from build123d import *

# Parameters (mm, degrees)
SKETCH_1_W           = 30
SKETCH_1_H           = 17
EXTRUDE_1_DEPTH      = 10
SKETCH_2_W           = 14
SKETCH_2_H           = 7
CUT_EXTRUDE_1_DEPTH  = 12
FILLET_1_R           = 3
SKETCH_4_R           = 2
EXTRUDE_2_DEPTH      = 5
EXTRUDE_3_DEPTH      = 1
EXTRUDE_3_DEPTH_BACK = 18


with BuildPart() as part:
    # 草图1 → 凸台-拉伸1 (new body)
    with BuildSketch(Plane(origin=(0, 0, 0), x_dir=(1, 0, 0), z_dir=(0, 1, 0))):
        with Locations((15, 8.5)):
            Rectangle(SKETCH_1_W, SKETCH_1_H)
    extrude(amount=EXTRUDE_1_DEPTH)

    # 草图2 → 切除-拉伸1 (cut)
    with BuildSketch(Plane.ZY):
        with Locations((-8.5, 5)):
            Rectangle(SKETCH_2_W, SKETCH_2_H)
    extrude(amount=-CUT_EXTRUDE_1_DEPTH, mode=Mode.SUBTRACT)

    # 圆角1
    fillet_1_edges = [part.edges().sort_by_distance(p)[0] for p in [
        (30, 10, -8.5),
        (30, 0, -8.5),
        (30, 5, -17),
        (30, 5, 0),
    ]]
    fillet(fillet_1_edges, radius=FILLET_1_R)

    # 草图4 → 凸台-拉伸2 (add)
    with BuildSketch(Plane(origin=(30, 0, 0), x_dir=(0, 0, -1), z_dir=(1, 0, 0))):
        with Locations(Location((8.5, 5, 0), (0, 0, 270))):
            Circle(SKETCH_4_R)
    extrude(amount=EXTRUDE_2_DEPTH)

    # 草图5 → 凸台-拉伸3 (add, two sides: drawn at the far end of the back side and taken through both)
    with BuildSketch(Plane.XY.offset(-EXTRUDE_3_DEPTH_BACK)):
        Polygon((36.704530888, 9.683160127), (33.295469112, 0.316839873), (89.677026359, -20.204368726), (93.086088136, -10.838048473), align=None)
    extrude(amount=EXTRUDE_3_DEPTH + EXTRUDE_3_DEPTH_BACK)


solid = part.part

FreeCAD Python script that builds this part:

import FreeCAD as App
import Part
import Sketcher
from FreeCAD import Vector
Q = App.Units.Quantity


def edges_at(feature, points):
    """Names of the edges that pass closest to the given points."""
    edges = feature.Shape.Edges
    near = lambda p: min(range(len(edges)), key=lambda i: edges[i].distToShape(Part.Vertex(*p))[0])
    return sorted({f"Edge{near(p) + 1}" for p in points})


def add_polygon(sketch, points):
    """Adds a closed chain of lines whose ends are joined by coincident constraints."""
    first, n = sketch.GeometryCount, len(points)
    for a, b in zip(points, points[1:] + points[:1]):
        sketch.addGeometry(Part.LineSegment(App.Vector(*a, 0), App.Vector(*b, 0)), False)
    for i in range(n):
        sketch.addConstraint(Sketcher.Constraint("Coincident", first + i, 2, first + (i + 1) % n, 1))

doc = App.newDocument("Part")
params = doc.addObject("Spreadsheet::Sheet", "Params")
for row, (alias, value) in enumerate([
    ("sketch1_width", "30 mm"),
    ("sketch1_height", "17 mm"),
    ("pad1_length", "10 mm"),
    ("sketch2_width", "7 mm"),
    ("sketch2_height", "14 mm"),
    ("pocket1_length", "12 mm"),
    ("fillet_radius", "3 mm"),
    ("sketch3_diameter", "4 mm"),
    ("pad2_length", "5 mm"),
    ("sketch4_length", "60 mm"),
    ("pad3_length", "1 mm"),
    ("pad3_length2", "18 mm"),
], start=1):
    params.set(f"A{row}", alias)
    params.set(f"B{row}", "=" + value)
    params.setAlias(f"B{row}", alias)

body = doc.addObject("PartDesign::Body", "Body")

# Sketch on XZ plane
sketch1 = doc.addObject("Sketcher::SketchObject", "Sketch")
body.addObject(sketch1)
sketch1.AttachmentSupport = (doc.XZ_Plane, [""])
sketch1.MapMode = "FlatFace"
add_polygon(sketch1, [(0, -17), (0, 0), (30, 0), (30, -17)])  # lines 0-3
sketch1.addConstraint(Sketcher.Constraint("Vertical", 0))
sketch1.addConstraint(Sketcher.Constraint("Horizontal", 1))
sketch1.addConstraint(Sketcher.Constraint("Vertical", 2))
sketch1.addConstraint(Sketcher.Constraint("Horizontal", 3))
sketch1.addConstraint(Sketcher.Constraint("Coincident", 0, 2, -1, 1))
sketch1.addConstraint(Sketcher.Constraint("DistanceX", 1, 1, 1, 2, Q("30 mm")))
sketch1.addConstraint(Sketcher.Constraint("DistanceY", 0, 1, 0, 2, Q("17 mm")))
sketch1.setExpression("Constraints[9]", "Params.sketch1_width")
sketch1.setExpression("Constraints[10]", "Params.sketch1_height")
pad1 = doc.addObject("PartDesign::Pad", "Pad")
body.addObject(pad1)
pad1.Profile = sketch1
pad1.setExpression("Length", "Params.pad1_length")
pad1.Reversed = True

# Sketch on YZ plane
sketch2 = doc.addObject("Sketcher::SketchObject", "Sketch001")
body.addObject(sketch2)
sketch2.AttachmentSupport = (doc.YZ_Plane, [""])
sketch2.MapMode = "FlatFace"
add_polygon(sketch2, [(8.5, -15.5), (1.5, -15.5), (1.5, -1.5), (8.5, -1.5)])  # lines 0-3
sketch2.addConstraint(Sketcher.Constraint("Horizontal", 0))
sketch2.addConstraint(Sketcher.Constraint("Vertical", 1))
sketch2.addConstraint(Sketcher.Constraint("Horizontal", 2))
sketch2.addConstraint(Sketcher.Constraint("Vertical", 3))
sketch2.addConstraint(Sketcher.Constraint("DistanceX", 0, 2, 0, 1, Q("7 mm")))
sketch2.addConstraint(Sketcher.Constraint("DistanceY", 1, 1, 1, 2, Q("14 mm")))
sketch2.addConstraint(Sketcher.Constraint("DistanceX", -1, 1, 0, 2, Q("1.5 mm")))
sketch2.addConstraint(Sketcher.Constraint("DistanceY", 0, 2, -1, 1, Q("15.5 mm")))
sketch2.setExpression("Constraints[8]", "Params.sketch2_width")
sketch2.setExpression("Constraints[9]", "Params.sketch2_height")
pocket1 = doc.addObject("PartDesign::Pocket", "Pocket")
body.addObject(pocket1)
pocket1.Profile = sketch2
pocket1.setExpression("Length", "Params.pocket1_length")
pocket1.Reversed = True
doc.recompute()

fillet = doc.addObject("PartDesign::Fillet", "Fillet")
body.addObject(fillet)
fillet.Base = (pocket1, edges_at(pocket1, [
    (30, 10, -8.5),
    (30, 0, -8.5),
    (30, 5, -17),
    (30, 5, 0),
]))
fillet.setExpression("Radius", "Params.fillet_radius")

# Sketch on YZ plane
sketch3 = doc.addObject("Sketcher::SketchObject", "Sketch002")
body.addObject(sketch3)
sketch3.AttachmentSupport = (doc.YZ_Plane, [""])
sketch3.MapMode = "FlatFace"
sketch3.AttachmentOffset = App.Placement(Vector(0, 0, 30), App.Rotation())
sketch3.addGeometry(Part.Circle(Vector(5, -8.5, 0), Vector(0, 0, 1), 2), False)
sketch3.addConstraint(Sketcher.Constraint("Diameter", 0, Q("4 mm")))
sketch3.addConstraint(Sketcher.Constraint("DistanceX", -1, 1, 0, 3, Q("5 mm")))
sketch3.addConstraint(Sketcher.Constraint("DistanceY", 0, 3, -1, 1, Q("8.5 mm")))
sketch3.setExpression("Constraints[0]", "Params.sketch3_diameter")
pad2 = doc.addObject("PartDesign::Pad", "Pad001")
body.addObject(pad2)
pad2.Profile = sketch3
pad2.setExpression("Length", "Params.pad2_length")

# Sketch on XY plane
sketch4 = doc.addObject("Sketcher::SketchObject", "Sketch003")
body.addObject(sketch4)
sketch4.AttachmentSupport = (doc.XY_Plane, [""])
sketch4.MapMode = "FlatFace"
add_polygon(sketch4, [(36.704531, 9.68316), (33.295469, 0.31684), (89.677026, -20.204369), (93.086088, -10.838048)])  # lines 0-3
sketch4.addConstraint(Sketcher.Constraint("Perpendicular", 0, 1))
sketch4.addConstraint(Sketcher.Constraint("Perpendicular", 1, 2))
sketch4.addConstraint(Sketcher.Constraint("Perpendicular", 2, 3))
sketch4.addConstraint(Sketcher.Constraint("Angle", 0, Q("-110 deg")))
sketch4.addConstraint(Sketcher.Constraint("Distance", 1, Q("60 mm")))
sketch4.addConstraint(Sketcher.Constraint("Distance", 0, Q("9.96743 mm")))
sketch4.addConstraint(Sketcher.Constraint("DistanceX", -1, 1, 0, 2, Q("33.295469 mm")))
sketch4.addConstraint(Sketcher.Constraint("DistanceY", -1, 1, 0, 2, Q("0.31684 mm")))
sketch4.setExpression("Constraints[8]", "Params.sketch4_length")
pad3 = doc.addObject("PartDesign::Pad", "Pad002")
body.addObject(pad3)
pad3.Profile = sketch4
pad3.Type = "TwoLengths"
pad3.setExpression("Length", "Params.pad3_length")
pad3.setExpression("Length2", "Params.pad3_length2")

doc.recompute()
